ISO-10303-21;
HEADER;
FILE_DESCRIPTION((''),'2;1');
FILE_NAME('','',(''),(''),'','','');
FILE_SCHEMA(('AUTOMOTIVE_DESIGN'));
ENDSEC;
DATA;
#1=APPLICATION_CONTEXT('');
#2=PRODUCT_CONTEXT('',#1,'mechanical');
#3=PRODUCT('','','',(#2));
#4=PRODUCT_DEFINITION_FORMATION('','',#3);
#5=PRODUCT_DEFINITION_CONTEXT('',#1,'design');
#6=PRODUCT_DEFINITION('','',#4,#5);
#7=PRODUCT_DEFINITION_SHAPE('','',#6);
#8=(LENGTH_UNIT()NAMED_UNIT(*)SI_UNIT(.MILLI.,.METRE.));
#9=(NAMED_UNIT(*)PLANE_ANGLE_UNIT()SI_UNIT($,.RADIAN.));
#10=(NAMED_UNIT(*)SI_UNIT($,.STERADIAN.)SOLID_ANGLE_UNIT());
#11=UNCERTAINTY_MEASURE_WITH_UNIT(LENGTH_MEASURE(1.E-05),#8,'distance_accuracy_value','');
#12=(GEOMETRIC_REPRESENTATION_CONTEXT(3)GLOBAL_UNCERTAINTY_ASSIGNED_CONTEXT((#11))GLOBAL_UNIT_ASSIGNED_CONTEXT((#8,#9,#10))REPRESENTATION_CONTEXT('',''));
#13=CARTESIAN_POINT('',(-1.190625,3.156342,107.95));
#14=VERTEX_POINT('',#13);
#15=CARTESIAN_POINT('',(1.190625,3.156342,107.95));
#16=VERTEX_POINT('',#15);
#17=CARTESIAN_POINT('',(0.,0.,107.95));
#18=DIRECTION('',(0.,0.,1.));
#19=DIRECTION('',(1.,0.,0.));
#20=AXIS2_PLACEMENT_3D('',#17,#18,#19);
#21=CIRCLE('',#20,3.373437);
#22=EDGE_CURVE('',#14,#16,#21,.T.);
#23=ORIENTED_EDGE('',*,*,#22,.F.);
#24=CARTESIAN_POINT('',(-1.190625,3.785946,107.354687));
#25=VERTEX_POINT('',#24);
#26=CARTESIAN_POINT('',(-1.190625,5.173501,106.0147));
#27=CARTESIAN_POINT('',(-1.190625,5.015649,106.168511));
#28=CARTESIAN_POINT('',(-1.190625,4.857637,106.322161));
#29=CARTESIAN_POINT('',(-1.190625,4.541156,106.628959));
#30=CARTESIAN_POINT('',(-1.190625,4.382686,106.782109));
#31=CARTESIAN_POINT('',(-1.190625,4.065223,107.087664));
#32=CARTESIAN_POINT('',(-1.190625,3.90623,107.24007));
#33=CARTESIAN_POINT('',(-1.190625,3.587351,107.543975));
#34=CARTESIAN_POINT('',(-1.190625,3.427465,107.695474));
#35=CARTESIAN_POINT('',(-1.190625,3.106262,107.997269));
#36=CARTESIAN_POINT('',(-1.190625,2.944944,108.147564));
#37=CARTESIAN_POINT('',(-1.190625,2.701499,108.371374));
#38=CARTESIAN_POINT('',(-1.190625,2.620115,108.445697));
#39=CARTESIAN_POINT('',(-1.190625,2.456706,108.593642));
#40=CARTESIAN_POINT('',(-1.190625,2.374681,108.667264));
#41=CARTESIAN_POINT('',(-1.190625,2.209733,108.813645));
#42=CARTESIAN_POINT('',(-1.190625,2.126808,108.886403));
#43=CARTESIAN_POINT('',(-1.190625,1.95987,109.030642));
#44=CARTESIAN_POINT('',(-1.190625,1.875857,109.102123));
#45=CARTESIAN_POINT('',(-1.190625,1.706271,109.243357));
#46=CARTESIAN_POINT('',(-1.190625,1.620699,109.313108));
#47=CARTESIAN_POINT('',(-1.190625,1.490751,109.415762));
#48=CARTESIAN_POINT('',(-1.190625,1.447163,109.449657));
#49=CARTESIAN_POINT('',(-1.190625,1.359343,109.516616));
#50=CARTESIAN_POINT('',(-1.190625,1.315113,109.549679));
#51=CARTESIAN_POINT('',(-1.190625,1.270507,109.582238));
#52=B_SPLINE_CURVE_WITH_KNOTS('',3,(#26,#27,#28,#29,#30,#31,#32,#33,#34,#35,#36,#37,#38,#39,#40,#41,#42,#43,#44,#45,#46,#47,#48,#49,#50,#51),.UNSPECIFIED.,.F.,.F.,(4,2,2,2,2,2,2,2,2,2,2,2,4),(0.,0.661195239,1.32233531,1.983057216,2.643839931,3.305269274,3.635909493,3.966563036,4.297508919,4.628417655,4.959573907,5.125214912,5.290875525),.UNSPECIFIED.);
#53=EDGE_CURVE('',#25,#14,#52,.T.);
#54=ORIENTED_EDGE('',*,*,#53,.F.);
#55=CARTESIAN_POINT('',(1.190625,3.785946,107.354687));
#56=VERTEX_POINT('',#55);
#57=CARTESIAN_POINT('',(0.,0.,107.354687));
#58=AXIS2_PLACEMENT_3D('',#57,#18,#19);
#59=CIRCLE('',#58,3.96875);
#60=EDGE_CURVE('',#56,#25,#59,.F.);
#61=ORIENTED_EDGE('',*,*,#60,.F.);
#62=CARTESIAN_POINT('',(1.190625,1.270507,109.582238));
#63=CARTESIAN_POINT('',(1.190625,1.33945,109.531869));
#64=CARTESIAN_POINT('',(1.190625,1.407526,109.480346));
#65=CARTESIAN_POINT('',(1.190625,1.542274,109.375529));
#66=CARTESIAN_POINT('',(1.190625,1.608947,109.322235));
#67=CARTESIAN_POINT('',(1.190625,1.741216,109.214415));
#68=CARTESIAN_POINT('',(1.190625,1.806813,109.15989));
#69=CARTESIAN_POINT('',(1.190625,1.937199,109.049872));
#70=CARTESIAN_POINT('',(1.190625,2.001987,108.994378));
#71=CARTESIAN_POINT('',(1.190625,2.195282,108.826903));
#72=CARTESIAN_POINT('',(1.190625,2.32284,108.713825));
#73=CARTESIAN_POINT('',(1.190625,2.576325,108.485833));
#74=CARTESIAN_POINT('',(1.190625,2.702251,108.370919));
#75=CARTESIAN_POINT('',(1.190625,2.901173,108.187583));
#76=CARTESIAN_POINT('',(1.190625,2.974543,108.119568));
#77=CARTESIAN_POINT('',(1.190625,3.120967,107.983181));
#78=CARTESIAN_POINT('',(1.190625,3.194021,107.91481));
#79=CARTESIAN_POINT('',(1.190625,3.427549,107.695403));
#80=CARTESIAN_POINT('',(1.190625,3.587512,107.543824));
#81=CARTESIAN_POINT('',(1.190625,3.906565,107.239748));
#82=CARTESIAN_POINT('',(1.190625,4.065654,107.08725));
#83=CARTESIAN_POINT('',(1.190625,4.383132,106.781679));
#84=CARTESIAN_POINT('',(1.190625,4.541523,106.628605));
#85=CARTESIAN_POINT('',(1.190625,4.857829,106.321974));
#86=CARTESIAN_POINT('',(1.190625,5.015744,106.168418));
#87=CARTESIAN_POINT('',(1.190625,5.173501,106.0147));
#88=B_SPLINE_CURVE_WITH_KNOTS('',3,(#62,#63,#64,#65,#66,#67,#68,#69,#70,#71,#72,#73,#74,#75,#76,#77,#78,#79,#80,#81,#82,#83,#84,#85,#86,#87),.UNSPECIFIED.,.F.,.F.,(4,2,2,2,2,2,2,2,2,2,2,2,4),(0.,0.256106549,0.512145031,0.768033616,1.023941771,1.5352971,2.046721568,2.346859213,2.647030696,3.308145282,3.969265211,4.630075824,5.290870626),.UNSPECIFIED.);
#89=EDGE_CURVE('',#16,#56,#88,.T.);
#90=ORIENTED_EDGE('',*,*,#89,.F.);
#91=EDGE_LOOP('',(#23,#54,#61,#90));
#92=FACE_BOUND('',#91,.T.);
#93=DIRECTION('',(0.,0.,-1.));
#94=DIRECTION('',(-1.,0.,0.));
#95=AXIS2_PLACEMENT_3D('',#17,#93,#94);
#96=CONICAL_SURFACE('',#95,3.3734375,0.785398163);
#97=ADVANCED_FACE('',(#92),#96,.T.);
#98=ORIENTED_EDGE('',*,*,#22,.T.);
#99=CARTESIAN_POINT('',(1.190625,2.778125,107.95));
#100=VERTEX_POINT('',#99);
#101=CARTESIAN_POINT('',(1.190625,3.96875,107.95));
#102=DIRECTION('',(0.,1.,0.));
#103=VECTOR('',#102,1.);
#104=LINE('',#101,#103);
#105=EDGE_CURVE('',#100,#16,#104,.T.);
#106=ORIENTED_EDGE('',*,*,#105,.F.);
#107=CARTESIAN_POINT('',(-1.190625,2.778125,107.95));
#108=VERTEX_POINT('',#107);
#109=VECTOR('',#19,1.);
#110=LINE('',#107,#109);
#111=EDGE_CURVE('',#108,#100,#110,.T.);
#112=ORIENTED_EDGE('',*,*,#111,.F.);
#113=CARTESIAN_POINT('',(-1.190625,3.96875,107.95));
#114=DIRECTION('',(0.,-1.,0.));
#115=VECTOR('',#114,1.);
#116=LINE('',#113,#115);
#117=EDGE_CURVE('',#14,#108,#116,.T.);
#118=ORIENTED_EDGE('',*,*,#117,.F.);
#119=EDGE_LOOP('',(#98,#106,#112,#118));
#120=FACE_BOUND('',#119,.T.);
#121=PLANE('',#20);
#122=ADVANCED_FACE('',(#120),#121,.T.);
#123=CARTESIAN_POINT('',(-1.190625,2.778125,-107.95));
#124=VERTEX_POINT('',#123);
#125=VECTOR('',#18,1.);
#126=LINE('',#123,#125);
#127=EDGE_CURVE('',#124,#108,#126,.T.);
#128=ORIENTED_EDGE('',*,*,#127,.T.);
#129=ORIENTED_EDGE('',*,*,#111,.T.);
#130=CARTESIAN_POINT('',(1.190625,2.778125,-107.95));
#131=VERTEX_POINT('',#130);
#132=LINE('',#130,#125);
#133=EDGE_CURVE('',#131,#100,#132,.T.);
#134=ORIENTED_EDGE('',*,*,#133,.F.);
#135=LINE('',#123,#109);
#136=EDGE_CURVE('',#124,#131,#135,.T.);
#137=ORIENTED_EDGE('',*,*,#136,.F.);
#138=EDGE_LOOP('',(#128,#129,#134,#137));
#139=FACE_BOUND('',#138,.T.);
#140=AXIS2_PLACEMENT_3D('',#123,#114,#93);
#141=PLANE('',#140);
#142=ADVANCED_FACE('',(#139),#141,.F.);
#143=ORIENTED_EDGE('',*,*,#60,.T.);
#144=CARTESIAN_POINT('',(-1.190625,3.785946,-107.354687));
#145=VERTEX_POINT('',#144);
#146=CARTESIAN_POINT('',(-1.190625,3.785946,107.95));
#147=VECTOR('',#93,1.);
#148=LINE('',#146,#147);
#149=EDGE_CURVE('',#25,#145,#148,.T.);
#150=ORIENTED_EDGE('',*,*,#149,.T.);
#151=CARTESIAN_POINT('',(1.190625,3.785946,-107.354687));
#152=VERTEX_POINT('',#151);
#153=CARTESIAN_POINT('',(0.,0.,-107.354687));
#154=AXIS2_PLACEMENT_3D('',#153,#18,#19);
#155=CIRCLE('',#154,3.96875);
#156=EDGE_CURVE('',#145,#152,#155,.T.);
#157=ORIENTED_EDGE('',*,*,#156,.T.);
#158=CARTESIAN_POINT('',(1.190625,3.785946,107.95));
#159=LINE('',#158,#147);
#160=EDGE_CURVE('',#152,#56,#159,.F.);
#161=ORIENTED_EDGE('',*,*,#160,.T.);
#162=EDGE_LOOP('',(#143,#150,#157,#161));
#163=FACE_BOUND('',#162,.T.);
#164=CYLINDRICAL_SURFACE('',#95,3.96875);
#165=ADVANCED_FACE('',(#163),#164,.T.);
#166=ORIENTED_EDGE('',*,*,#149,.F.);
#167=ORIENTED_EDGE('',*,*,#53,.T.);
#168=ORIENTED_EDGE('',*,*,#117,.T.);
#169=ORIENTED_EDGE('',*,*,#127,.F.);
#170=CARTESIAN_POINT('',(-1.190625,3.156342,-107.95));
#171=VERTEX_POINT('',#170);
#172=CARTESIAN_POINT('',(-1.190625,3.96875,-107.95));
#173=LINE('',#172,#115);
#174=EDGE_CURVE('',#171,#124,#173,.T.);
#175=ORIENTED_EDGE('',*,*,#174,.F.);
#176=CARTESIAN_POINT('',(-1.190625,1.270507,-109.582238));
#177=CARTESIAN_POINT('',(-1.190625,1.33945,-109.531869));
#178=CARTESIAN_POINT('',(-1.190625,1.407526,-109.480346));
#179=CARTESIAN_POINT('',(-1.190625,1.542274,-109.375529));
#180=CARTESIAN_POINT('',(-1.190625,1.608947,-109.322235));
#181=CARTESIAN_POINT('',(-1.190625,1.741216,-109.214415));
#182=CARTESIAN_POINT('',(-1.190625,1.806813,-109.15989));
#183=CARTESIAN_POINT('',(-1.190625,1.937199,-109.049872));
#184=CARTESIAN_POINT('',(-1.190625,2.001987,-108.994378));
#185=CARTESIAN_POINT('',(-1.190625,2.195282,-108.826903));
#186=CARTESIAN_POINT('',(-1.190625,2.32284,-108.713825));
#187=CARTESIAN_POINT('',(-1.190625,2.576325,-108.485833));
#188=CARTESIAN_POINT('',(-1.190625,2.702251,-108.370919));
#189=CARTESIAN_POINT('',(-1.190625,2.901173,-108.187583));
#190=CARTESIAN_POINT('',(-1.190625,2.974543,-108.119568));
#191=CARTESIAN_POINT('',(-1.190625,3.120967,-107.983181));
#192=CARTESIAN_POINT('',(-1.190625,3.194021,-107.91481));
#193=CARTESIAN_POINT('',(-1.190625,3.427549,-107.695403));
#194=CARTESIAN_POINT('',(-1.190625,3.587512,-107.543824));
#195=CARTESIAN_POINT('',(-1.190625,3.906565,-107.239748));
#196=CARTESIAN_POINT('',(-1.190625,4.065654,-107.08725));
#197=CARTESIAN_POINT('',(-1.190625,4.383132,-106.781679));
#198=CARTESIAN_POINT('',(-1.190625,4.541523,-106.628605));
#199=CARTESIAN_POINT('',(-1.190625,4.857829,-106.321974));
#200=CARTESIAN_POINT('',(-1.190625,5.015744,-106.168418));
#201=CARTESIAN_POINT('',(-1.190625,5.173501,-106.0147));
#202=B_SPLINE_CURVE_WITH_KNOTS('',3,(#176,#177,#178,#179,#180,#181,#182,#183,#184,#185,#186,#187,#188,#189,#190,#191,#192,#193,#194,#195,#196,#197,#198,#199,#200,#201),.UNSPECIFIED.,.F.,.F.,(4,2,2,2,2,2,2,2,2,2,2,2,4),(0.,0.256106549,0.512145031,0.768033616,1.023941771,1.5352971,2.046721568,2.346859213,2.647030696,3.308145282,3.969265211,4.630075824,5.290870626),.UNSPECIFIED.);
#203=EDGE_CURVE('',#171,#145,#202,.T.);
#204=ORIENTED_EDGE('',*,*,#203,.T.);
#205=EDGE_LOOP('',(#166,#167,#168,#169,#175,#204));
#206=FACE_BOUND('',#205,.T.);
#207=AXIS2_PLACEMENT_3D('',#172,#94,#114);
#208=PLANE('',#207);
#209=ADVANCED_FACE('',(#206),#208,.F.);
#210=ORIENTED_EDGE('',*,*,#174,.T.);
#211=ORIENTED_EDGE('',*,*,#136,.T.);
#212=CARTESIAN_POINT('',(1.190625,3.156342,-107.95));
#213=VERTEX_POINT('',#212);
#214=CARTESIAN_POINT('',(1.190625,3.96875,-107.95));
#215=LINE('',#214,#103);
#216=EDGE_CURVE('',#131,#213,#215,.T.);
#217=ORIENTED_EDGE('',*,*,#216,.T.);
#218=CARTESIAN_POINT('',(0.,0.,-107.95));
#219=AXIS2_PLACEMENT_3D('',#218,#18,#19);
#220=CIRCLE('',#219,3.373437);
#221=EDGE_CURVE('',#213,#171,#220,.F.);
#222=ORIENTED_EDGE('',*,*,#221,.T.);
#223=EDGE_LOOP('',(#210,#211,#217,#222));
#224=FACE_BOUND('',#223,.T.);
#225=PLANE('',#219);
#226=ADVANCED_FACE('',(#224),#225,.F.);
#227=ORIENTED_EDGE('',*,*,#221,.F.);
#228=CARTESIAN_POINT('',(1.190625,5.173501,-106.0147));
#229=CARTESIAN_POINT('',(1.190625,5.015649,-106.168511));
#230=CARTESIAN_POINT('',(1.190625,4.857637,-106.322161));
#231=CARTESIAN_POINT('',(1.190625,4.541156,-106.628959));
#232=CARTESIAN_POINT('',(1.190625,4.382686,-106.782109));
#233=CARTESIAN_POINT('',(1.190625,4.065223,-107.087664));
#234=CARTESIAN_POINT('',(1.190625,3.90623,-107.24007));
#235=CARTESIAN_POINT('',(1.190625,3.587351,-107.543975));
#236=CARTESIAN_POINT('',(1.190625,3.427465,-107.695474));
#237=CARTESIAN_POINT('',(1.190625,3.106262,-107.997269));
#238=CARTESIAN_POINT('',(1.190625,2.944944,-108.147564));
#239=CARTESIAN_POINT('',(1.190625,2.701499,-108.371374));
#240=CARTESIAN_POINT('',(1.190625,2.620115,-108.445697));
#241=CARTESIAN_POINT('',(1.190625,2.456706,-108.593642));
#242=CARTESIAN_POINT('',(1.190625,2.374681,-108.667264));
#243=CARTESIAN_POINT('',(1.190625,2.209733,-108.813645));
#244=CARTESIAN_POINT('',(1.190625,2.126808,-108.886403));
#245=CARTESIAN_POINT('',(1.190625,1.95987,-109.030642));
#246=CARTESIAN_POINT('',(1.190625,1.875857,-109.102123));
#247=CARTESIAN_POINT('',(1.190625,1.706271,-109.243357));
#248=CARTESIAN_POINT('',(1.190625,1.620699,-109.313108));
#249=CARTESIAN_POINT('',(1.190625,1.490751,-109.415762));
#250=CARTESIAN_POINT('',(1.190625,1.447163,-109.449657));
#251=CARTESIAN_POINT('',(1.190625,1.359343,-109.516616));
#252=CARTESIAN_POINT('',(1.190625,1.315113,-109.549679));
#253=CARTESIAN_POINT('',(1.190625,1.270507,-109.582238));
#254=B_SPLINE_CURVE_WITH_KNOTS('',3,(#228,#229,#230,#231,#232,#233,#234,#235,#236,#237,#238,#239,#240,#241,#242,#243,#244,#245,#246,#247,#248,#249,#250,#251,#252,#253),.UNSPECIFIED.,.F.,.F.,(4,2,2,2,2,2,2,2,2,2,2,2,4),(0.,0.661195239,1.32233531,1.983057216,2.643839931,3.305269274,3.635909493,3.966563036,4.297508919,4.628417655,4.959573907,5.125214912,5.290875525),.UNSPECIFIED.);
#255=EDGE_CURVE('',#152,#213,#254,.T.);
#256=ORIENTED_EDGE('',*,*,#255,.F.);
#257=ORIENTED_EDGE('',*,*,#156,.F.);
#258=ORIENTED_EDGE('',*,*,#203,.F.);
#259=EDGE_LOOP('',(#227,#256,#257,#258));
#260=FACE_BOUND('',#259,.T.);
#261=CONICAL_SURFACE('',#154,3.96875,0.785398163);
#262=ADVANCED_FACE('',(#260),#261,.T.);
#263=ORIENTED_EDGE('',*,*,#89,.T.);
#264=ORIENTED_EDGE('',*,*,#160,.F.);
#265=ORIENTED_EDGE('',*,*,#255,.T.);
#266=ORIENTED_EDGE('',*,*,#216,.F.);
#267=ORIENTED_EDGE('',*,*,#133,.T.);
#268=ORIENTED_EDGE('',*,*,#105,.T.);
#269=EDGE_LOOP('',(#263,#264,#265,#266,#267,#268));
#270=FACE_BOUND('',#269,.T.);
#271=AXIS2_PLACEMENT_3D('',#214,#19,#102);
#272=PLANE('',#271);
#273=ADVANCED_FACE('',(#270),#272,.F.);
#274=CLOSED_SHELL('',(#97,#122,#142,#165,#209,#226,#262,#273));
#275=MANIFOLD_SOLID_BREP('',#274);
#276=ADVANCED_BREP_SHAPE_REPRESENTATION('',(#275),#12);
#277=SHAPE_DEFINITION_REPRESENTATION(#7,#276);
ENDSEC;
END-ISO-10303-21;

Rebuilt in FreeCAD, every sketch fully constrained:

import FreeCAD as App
import Part
import Sketcher
Q = App.Units.Quantity


def edges_at(feature, points):
    """Names of the edges that pass closest to the given points."""
    edges = feature.Shape.Edges
    near = lambda p: min(range(len(edges)), key=lambda i: edges[i].distToShape(Part.Vertex(*p))[0])
    return sorted({f"Edge{near(p) + 1}" for p in points})

doc = App.newDocument("Part")
body = doc.addObject("PartDesign::Body", "Body")

# Sketch on XY plane
sketch1 = body.newObject("Sketcher::SketchObject", "Sketch")
sketch1.AttachmentSupport = (doc.getObject("XY_Plane"), [""])
sketch1.MapMode = "FlatFace"
sketch1.addGeometry(Part.Circle(App.Vector(0, 0, 0), App.Vector(0, 0, 1), 4), False)
sketch1.addConstraint(Sketcher.Constraint("Coincident", 0, 3, -1, 1))
sketch1.addConstraint(Sketcher.Constraint("Diameter", 0, Q("0.3125 in")))
pad1 = body.newObject("PartDesign::Pad", "Pad")
pad1.Profile = sketch1
pad1.Length = Q("8.5 in")
pad1.Midplane = True
doc.recompute()

chamfer = body.newObject("PartDesign::Chamfer", "Chamfer")
chamfer.Base = (pad1, edges_at(pad1, [(-3.969, 0, -107.95), (-3.969, 0, 107.95)]))
chamfer.Size = 0.595313

# Sketch on XY plane
sketch2 = body.newObject("Sketcher::SketchObject", "Sketch001")
sketch2.AttachmentSupport = (doc.getObject("XY_Plane"), [""])
sketch2.MapMode = "FlatFace"
sketch2.addGeometry(Part.LineSegment(App.Vector(-1.2, 4, 0), App.Vector(-1.2, 2.8, 0)), False)
sketch2.addGeometry(Part.LineSegment(App.Vector(-1.2, 2.8, 0), App.Vector(1.2, 2.8, 0)), False)
sketch2.addGeometry(Part.LineSegment(App.Vector(1.2, 2.8, 0), App.Vector(1.2, 4, 0)), False)
sketch2.addGeometry(Part.LineSegment(App.Vector(1.2, 4, 0), App.Vector(-1.2, 4, 0)), False)
sketch2.addConstraint(Sketcher.Constraint("Coincident", 0, 2, 1, 1))
sketch2.addConstraint(Sketcher.Constraint("Coincident", 1, 2, 2, 1))
sketch2.addConstraint(Sketcher.Constraint("Coincident", 2, 2, 3, 1))
sketch2.addConstraint(Sketcher.Constraint("Coincident", 3, 2, 0, 1))
sketch2.addConstraint(Sketcher.Constraint("Vertical", 0))
sketch2.addConstraint(Sketcher.Constraint("Horizontal", 1))
sketch2.addConstraint(Sketcher.Constraint("Vertical", 2))
sketch2.addConstraint(Sketcher.Constraint("Horizontal", 3))
sketch2.addConstraint(Sketcher.Constraint("DistanceX", 1, 1, 1, 2, Q("0.09375 in")))
sketch2.addConstraint(Sketcher.Constraint("DistanceY", 0, 2, 0, 1, Q("0.046875 in")))
sketch2.addConstraint(Sketcher.Constraint("DistanceX", 0, 2, -1, 1, Q("0.046875 in")))
sketch2.addConstraint(Sketcher.Constraint("DistanceY", -1, 1, 0, 2, Q("0.109375 in")))
pocket1 = body.newObject("PartDesign::Pocket", "Pocket")
pocket1.Profile = sketch2
pocket1.Type = "ThroughAll"
pocket1.Midplane = True

doc.recompute()
